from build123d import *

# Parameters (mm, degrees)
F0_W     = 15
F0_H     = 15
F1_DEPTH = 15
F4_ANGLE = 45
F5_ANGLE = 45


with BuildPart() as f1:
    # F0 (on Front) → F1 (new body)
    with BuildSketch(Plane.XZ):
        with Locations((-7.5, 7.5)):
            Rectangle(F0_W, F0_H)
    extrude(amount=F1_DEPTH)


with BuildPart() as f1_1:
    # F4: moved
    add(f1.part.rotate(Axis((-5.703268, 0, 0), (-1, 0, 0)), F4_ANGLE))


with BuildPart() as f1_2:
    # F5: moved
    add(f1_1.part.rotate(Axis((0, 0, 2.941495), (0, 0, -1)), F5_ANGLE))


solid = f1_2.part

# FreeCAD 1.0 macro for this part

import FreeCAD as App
import Part
import Sketcher
Q = App.Units.Quantity

doc = App.newDocument("Part")
body = doc.addObject("PartDesign::Body", "Body")

# Sketch on XZ plane
sketch1 = body.newObject("Sketcher::SketchObject", "Sketch")
sketch1.AttachmentSupport = (doc.getObject("XZ_Plane"), [""])
sketch1.MapMode = "FlatFace"
sketch1.addGeometry([
    Part.LineSegment(App.Vector(-15, 15, 0), App.Vector(-15, 0, 0)),
    Part.LineSegment(App.Vector(-15, 0, 0), App.Vector(0, 0, 0)),
    Part.LineSegment(App.Vector(0, 0, 0), App.Vector(0, 15, 0)),
    Part.LineSegment(App.Vector(0, 15, 0), App.Vector(-15, 15, 0)),
], False)
sketch1.addConstraint([
    Sketcher.Constraint("Coincident", 0, 2, 1, 1),
    Sketcher.Constraint("Coincident", 1, 2, 2, 1),
    Sketcher.Constraint("Coincident", 2, 2, 3, 1),
    Sketcher.Constraint("Coincident", 3, 2, 0, 1),
    Sketcher.Constraint("Vertical", 0),
    Sketcher.Constraint("Horizontal", 1),
    Sketcher.Constraint("Vertical", 2),
    Sketcher.Constraint("Horizontal", 3),
    Sketcher.Constraint("Coincident", 1, 2, -1, 1),
    Sketcher.Constraint("Equal", 3, 0),
    Sketcher.Constraint("DistanceX", 1, 1, 1, 2, Q("15 mm")),
])
pad1 = body.newObject("PartDesign::Pad", "Pad")
pad1.Profile = sketch1
pad1.Length = 15
body2 = doc.addObject("PartDesign::Body", "Body001")
doc.recompute()

body.Placement = App.Placement(App.Vector(0, 0, 0), App.Rotation(App.Vector(-1, 0, 0), 45))
boolean = body2.newObject("PartDesign::Boolean", "Boolean")
boolean.Type = "Fuse"
boolean.addObjects([body])
body3 = doc.addObject("PartDesign::Body", "Body002")
doc.recompute()

body2.Placement = App.Placement(App.Vector(0, 0, 0), App.Rotation(App.Vector(0, 0, -1), 45))
boolean2 = body3.newObject("PartDesign::Boolean", "Boolean001")
boolean2.Type = "Fuse"
boolean2.addObjects([body2])

doc.recompute()
